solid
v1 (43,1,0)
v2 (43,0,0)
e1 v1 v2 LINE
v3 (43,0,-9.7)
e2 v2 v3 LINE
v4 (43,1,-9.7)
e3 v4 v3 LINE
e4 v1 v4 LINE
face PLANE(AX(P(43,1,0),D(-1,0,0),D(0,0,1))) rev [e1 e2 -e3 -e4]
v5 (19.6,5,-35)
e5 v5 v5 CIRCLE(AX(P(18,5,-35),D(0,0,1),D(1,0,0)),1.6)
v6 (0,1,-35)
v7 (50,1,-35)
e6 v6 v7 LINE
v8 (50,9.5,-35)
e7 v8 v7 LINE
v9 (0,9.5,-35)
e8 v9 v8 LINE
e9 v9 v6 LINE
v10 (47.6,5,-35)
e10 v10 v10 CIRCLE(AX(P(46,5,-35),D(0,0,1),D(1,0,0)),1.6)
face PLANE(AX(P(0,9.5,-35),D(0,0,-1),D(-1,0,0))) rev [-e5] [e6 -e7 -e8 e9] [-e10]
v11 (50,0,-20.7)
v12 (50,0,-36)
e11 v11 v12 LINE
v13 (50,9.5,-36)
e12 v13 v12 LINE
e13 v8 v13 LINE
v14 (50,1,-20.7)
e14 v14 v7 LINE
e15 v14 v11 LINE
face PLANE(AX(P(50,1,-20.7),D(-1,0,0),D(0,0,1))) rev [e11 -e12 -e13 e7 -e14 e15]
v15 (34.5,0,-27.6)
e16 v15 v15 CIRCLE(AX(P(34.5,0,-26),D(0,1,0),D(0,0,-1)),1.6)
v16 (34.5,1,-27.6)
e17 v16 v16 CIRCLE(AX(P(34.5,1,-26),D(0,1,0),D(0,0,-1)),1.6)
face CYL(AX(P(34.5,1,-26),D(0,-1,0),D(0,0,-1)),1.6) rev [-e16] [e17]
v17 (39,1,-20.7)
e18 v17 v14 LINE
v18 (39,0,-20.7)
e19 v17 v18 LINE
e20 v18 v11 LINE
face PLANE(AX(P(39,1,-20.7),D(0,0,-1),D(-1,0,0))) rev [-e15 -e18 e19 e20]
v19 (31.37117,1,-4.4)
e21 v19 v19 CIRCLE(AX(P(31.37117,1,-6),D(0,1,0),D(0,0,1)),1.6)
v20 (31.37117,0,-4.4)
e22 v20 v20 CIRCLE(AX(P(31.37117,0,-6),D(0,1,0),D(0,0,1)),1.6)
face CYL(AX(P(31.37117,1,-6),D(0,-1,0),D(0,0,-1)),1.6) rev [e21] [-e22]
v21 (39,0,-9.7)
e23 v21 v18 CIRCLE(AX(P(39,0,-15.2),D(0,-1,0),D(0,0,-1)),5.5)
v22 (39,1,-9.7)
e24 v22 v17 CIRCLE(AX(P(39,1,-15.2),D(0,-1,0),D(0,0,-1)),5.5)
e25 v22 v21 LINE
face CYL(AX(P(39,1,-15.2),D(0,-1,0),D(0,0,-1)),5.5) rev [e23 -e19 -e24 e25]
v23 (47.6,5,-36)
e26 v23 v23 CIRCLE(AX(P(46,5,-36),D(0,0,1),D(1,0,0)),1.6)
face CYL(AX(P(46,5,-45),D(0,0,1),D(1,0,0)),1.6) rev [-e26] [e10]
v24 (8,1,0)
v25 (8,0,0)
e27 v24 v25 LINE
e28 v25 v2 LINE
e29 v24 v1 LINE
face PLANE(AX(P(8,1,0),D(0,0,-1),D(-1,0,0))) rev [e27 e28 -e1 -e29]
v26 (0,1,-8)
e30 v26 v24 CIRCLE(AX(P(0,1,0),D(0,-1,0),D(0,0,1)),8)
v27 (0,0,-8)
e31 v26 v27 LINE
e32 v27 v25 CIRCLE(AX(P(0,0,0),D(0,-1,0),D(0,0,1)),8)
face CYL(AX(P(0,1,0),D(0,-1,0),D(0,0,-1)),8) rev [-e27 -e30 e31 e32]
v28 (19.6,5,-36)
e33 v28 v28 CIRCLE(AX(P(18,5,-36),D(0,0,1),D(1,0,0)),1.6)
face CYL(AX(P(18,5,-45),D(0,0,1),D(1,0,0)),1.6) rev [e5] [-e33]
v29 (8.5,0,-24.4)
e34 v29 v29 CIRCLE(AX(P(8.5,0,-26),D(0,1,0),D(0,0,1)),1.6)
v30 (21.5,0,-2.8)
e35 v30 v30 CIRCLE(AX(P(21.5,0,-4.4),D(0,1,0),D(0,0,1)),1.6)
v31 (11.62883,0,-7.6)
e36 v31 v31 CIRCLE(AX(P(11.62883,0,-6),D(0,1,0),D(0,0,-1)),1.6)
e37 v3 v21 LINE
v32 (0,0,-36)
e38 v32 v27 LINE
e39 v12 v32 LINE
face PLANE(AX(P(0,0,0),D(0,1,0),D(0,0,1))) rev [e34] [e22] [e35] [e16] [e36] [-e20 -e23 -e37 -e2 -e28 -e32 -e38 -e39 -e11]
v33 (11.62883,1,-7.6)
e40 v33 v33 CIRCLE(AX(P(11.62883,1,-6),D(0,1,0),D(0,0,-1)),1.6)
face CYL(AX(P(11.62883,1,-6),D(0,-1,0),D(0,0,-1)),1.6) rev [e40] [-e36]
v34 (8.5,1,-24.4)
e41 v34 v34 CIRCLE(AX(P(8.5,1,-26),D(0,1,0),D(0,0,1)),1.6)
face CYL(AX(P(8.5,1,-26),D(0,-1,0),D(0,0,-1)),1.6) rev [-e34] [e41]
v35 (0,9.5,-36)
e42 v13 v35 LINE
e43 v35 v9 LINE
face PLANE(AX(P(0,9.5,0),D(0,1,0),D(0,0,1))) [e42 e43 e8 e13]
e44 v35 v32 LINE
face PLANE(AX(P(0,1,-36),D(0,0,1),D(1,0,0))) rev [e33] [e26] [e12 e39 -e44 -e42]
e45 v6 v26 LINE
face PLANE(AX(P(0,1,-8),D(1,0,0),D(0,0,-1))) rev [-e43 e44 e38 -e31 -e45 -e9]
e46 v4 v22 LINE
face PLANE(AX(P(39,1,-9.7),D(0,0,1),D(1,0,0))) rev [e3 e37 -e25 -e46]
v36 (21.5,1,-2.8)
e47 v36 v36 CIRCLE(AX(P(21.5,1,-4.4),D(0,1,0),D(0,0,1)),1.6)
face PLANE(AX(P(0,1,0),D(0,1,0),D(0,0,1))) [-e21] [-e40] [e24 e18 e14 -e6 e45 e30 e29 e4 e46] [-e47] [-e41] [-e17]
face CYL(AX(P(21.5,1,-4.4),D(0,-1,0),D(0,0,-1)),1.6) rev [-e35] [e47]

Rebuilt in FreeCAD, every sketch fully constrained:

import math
import FreeCAD as App
import Part
import Sketcher
from FreeCAD import Vector


def add_polygon(sketch, points):
    """Adds a closed chain of lines whose ends are joined by coincident constraints."""
    first, n = sketch.GeometryCount, len(points)
    for a, b in zip(points, points[1:] + points[:1]):
        sketch.addGeometry(Part.LineSegment(App.Vector(*a, 0), App.Vector(*b, 0)), False)
    for i in range(n):
        sketch.addConstraint(Sketcher.Constraint("Coincident", first + i, 2, first + (i + 1) % n, 1))

doc = App.newDocument("Part")
body = doc.addObject("PartDesign::Body", "Body")

sketch1 = body.newObject("Sketcher::SketchObject", "Sketch")
sketch1.AttachmentSupport = (doc.getObject("XZ_Plane"), [""])
sketch1.MapMode = "FlatFace"
sketch1.addGeometry([
    Part.LineSegment(Vector(8, 0, 0), Vector(43, 0, 0)),
    Part.LineSegment(Vector(43, 0, 0), Vector(43, -9.7, 0)),
    Part.LineSegment(Vector(43, -9.7, 0), Vector(39, -9.7, 0)),
    Part.ArcOfCircle(Part.Circle(Vector(39, -15.2, 0), Vector(0, 0, 1), 5.5), math.radians(90), math.radians(270)),
    Part.LineSegment(Vector(39, -20.7, 0), Vector(50, -20.7, 0)),
    Part.LineSegment(Vector(50, -20.7, 0), Vector(50, -36, 0)),
    Part.LineSegment(Vector(50, -36, 0), Vector(0, -36, 0)),
    Part.LineSegment(Vector(0, -36, 0), Vector(0, -8, 0)),
    Part.ArcOfCircle(Part.Circle(Vector(0, 0, 0), Vector(0, 0, 1), 8), math.radians(-90), math.radians(0)),
    Part.Circle(Vector(11.6, -6, 0), Vector(0, 0, 1), 1.6),
    Part.Circle(Vector(21.5, -4.4, 0), Vector(0, 0, 1), 1.6),
    Part.Circle(Vector(31.4, -6, 0), Vector(0, 0, 1), 1.6),
    Part.Circle(Vector(8.5, -26, 0), Vector(0, 0, 1), 1.6),
    Part.Circle(Vector(34.5, -26, 0), Vector(0, 0, 1), 1.6),
], False)
sketch1.addConstraint([
    Sketcher.Constraint("Coincident", 0, 2, 1, 1),
    Sketcher.Constraint("Coincident", 1, 2, 2, 1),
    Sketcher.Constraint("Tangent", 2, 2, 3, 1),
    Sketcher.Constraint("Tangent", 3, 2, 4, 1),
    Sketcher.Constraint("Coincident", 4, 2, 5, 1),
    Sketcher.Constraint("Coincident", 5, 2, 6, 1),
    Sketcher.Constraint("Coincident", 6, 2, 7, 1),
    Sketcher.Constraint("Coincident", 7, 2, 8, 1),
    Sketcher.Constraint("Coincident", 8, 2, 0, 1),
    Sketcher.Constraint("Horizontal", 0),
    Sketcher.Constraint("Vertical", 1),
    Sketcher.Constraint("Horizontal", 2),
    Sketcher.Constraint("Horizontal", 4),
    Sketcher.Constraint("Vertical", 5),
    Sketcher.Constraint("Horizontal", 6),
    Sketcher.Constraint("Vertical", 7),
    Sketcher.Constraint("Coincident", 8, 3, -1, 1),
    Sketcher.Constraint("Equal", 9, 10),
    Sketcher.Constraint("Equal", 10, 11),
    Sketcher.Constraint("Equal", 11, 12),
    Sketcher.Constraint("Equal", 12, 13),
    Sketcher.Constraint("PointOnObject", 0, 2, -1),
    Sketcher.Constraint("PointOnObject", 6, 2, -2),
    Sketcher.Constraint("Horizontal", 9, 3, 11, 3),
    Sketcher.Constraint("Horizontal", 12, 3, 13, 3),
    Sketcher.Constraint("Radius", 8, 8.0),
    Sketcher.Constraint("Diameter", 9, 3.2),
    Sketcher.Constraint("Radius", 3, 5.5),
    Sketcher.Constraint("DistanceX", 0, 1, 0, 2, 35.0),
    Sketcher.Constraint("DistanceX", 2, 2, 2, 1, 4.0),
    Sketcher.Constraint("DistanceX", 4, 1, 4, 2, 11.0),
    Sketcher.Constraint("DistanceY", 7, 1, 7, 2, 28.0),
    Sketcher.Constraint("DistanceY", 1, 2, 1, 1, 9.7),
    Sketcher.Constraint("DistanceY", 9, 3, -1, 1, 6.0),
    Sketcher.Constraint("DistanceY", 12, 3, -1, 1, 26.0),
    Sketcher.Constraint("DistanceX", 12, 3, 10, 3, 13.0),
    Sketcher.Constraint("DistanceX", 10, 3, 13, 3, 13.0),
    Sketcher.Constraint("DistanceX", -1, 1, 10, 3, 21.5),
    Sketcher.Constraint("DistanceY", 10, 3, -1, 1, 4.4),
    Sketcher.Constraint("DistanceX", -1, 1, 9, 3, 11.62883),
    Sketcher.Constraint("DistanceX", -1, 1, 11, 3, 31.37117),
])
pad1 = body.newObject("PartDesign::Pad", "Pad")
pad1.Profile = sketch1
pad1.Length = 1
pad1.Reversed = True

sketch2 = body.newObject("Sketcher::SketchObject", "Sketch001")
sketch2.AttachmentSupport = (doc.getObject("XZ_Plane"), [""])
sketch2.MapMode = "FlatFace"
sketch2.AttachmentOffset = App.Placement(Vector(0, 0, -1), App.Rotation())
add_polygon(sketch2, [(0, -36), (0, -35), (50, -35), (50, -36)])
sketch2.addConstraint([
    Sketcher.Constraint("Vertical", 0),
    Sketcher.Constraint("Horizontal", 1),
    Sketcher.Constraint("Vertical", 2),
    Sketcher.Constraint("Horizontal", 3),
    Sketcher.Constraint("PointOnObject", 0, 2, -2),
    Sketcher.Constraint("DistanceX", 1, 1, 1, 2, 50.0),
    Sketcher.Constraint("DistanceY", 0, 1, 0, 2, 1.0),
    Sketcher.Constraint("DistanceY", 0, 2, -1, 1, 35.0),
])
pad2 = body.newObject("PartDesign::Pad", "Pad001")
pad2.Profile = sketch2
pad2.Length = 8.5
pad2.Reversed = True

sketch3 = body.newObject("Sketcher::SketchObject", "Sketch002")
sketch3.AttachmentSupport = (doc.getObject("XY_Plane"), [""])
sketch3.MapMode = "FlatFace"
sketch3.AttachmentOffset = App.Placement(Vector(0, 0, -35), App.Rotation())
sketch3.addGeometry([
    Part.Circle(Vector(46, 5, 0), Vector(0, 0, 1), 1.6),
    Part.Circle(Vector(18, 5, 0), Vector(0, 0, 1), 1.6),
], False)
sketch3.addConstraint([
    Sketcher.Constraint("Equal", 0, 1),
    Sketcher.Constraint("Horizontal", 0, 3, 1, 3),
    Sketcher.Constraint("Diameter", 0, 3.2),
    Sketcher.Constraint("DistanceX", -1, 1, 0, 3, 46.0),
    Sketcher.Constraint("DistanceY", -1, 1, 0, 3, 5.0),
    Sketcher.Constraint("DistanceX", -1, 1, 1, 3, 18.0),
])
pocket1 = body.newObject("PartDesign::Pocket", "Pocket")
pocket1.Profile = sketch3
pocket1.Length = 10

doc.recompute()
